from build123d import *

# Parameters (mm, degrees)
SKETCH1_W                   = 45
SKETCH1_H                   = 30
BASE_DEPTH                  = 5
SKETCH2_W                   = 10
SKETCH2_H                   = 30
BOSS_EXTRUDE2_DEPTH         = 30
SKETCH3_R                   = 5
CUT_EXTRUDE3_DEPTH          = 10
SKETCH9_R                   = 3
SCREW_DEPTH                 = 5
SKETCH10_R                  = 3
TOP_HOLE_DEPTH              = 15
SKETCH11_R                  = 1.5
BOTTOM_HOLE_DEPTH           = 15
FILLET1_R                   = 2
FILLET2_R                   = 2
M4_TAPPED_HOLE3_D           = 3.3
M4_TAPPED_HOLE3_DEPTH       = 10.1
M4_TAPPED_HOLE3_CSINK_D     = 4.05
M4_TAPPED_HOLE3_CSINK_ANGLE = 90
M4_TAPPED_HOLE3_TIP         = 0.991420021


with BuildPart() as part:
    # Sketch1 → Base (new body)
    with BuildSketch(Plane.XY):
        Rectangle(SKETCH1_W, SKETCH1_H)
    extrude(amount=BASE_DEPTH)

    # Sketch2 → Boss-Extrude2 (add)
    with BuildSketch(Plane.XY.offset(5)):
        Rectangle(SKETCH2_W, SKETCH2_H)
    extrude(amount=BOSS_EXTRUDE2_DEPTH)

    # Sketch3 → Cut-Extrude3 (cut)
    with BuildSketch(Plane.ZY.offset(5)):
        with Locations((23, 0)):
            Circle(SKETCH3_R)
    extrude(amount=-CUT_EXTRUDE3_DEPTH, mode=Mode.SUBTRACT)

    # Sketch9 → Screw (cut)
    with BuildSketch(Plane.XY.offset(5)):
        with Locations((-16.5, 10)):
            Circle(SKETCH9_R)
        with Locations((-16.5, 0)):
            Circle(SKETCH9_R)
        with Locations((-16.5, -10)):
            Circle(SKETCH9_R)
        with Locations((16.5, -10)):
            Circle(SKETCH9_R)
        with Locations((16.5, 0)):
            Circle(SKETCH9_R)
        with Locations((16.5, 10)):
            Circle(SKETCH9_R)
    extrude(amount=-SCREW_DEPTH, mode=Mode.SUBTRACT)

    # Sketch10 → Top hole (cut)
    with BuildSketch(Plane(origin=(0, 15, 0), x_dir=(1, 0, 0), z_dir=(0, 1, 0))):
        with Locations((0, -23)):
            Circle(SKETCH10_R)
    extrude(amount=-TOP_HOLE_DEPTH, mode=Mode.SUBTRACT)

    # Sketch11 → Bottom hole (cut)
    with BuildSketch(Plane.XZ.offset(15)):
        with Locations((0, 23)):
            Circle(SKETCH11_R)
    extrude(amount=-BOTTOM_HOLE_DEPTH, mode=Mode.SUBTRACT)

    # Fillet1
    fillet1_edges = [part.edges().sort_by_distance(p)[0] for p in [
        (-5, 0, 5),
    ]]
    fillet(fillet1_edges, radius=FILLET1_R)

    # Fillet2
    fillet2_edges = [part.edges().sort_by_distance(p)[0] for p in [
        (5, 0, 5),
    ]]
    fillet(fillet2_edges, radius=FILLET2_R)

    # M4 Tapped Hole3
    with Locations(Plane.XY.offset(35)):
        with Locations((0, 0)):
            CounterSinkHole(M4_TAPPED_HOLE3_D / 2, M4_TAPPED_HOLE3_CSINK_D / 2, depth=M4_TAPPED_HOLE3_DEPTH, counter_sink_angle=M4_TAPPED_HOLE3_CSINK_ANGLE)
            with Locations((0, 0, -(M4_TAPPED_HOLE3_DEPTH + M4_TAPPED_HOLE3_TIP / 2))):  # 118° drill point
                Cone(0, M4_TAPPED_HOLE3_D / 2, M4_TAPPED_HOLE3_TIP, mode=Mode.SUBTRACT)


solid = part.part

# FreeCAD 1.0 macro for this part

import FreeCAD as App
import Part
import Sketcher
from FreeCAD import Vector
Q = App.Units.Quantity


def edges_at(feature, points):
    """Names of the edges that pass closest to the given points."""
    edges = feature.Shape.Edges
    near = lambda p: min(range(len(edges)), key=lambda i: edges[i].distToShape(Part.Vertex(*p))[0])
    return sorted({f"Edge{near(p) + 1}" for p in points})

doc = App.newDocument("Part")
body = doc.addObject("PartDesign::Body", "Body")

sketch1 = body.newObject("Sketcher::SketchObject", "Sketch")
sketch1.AttachmentSupport = (doc.getObject("XY_Plane"), [""])
sketch1.MapMode = "FlatFace"
sketch1.addGeometry([
    Part.LineSegment(Vector(-22, 15, 0), Vector(-22, -15, 0)),
    Part.LineSegment(Vector(-22, -15, 0), Vector(22, -15, 0)),
    Part.LineSegment(Vector(22, -15, 0), Vector(22, 15, 0)),
    Part.LineSegment(Vector(22, 15, 0), Vector(-22, 15, 0)),
], False)
sketch1.addConstraint([
    Sketcher.Constraint("Coincident", 0, 2, 1, 1),
    Sketcher.Constraint("Coincident", 1, 2, 2, 1),
    Sketcher.Constraint("Coincident", 2, 2, 3, 1),
    Sketcher.Constraint("Coincident", 3, 2, 0, 1),
    Sketcher.Constraint("Vertical", 0),
    Sketcher.Constraint("Horizontal", 1),
    Sketcher.Constraint("Vertical", 2),
    Sketcher.Constraint("Horizontal", 3),
    Sketcher.Constraint("Symmetric", 0, 2, 2, 2, -1, 1),
    Sketcher.Constraint("DistanceX", 1, 1, 1, 2, Q("45 mm")),
    Sketcher.Constraint("DistanceY", 0, 2, 0, 1, Q("30 mm")),
])
pad1 = body.newObject("PartDesign::Pad", "Pad")
pad1.Profile = sketch1
pad1.Length = 5

sketch2 = body.newObject("Sketcher::SketchObject", "Sketch001")
sketch2.AttachmentSupport = (doc.getObject("XY_Plane"), [""])
sketch2.MapMode = "FlatFace"
sketch2.AttachmentOffset = App.Placement(Vector(0, 0, 5), App.Rotation())
sketch2.addGeometry([
    Part.LineSegment(Vector(-5, 15, 0), Vector(-5, -15, 0)),
    Part.LineSegment(Vector(-5, -15, 0), Vector(5, -15, 0)),
    Part.LineSegment(Vector(5, -15, 0), Vector(5, 15, 0)),
    Part.LineSegment(Vector(5, 15, 0), Vector(-5, 15, 0)),
], False)
sketch2.addConstraint([
    Sketcher.Constraint("Coincident", 0, 2, 1, 1),
    Sketcher.Constraint("Coincident", 1, 2, 2, 1),
    Sketcher.Constraint("Coincident", 2, 2, 3, 1),
    Sketcher.Constraint("Coincident", 3, 2, 0, 1),
    Sketcher.Constraint("Vertical", 0),
    Sketcher.Constraint("Horizontal", 1),
    Sketcher.Constraint("Vertical", 2),
    Sketcher.Constraint("Horizontal", 3),
    Sketcher.Constraint("Symmetric", 0, 2, 2, 2, -1, 1),
    Sketcher.Constraint("DistanceX", 1, 1, 1, 2, Q("10 mm")),
    Sketcher.Constraint("DistanceY", 0, 2, 0, 1, Q("30 mm")),
])
pad2 = body.newObject("PartDesign::Pad", "Pad001")
pad2.Profile = sketch2
pad2.Length = 30

sketch3 = body.newObject("Sketcher::SketchObject", "Sketch002")
sketch3.AttachmentSupport = (doc.getObject("YZ_Plane"), [""])
sketch3.MapMode = "FlatFace"
sketch3.AttachmentOffset = App.Placement(Vector(0, 0, -5), App.Rotation())
sketch3.addGeometry(Part.Circle(Vector(0, 23, 0), Vector(0, 0, 1), 5), False)
sketch3.addConstraint([
    Sketcher.Constraint("PointOnObject", 0, 3, -2),
    Sketcher.Constraint("Diameter", 0, Q("10 mm")),
    Sketcher.Constraint("DistanceY", -1, 1, 0, 3, Q("23 mm")),
])
pocket1 = body.newObject("PartDesign::Pocket", "Pocket")
pocket1.Profile = sketch3
pocket1.Length = 10
pocket1.Reversed = True

sketch4 = body.newObject("Sketcher::SketchObject", "Sketch003")
sketch4.AttachmentSupport = (doc.getObject("XY_Plane"), [""])
sketch4.MapMode = "FlatFace"
sketch4.AttachmentOffset = App.Placement(Vector(0, 0, 5), App.Rotation())
sketch4.addGeometry([
    Part.Circle(Vector(-16.5, 10, 0), Vector(0, 0, 1), 3),
    Part.Circle(Vector(-16.5, 0, 0), Vector(0, 0, 1), 3),
    Part.Circle(Vector(-16.5, -10, 0), Vector(0, 0, 1), 3),
    Part.Circle(Vector(16.5, -10, 0), Vector(0, 0, 1), 3),
    Part.Circle(Vector(16.5, 0, 0), Vector(0, 0, 1), 3),
    Part.Circle(Vector(16.5, 10, 0), Vector(0, 0, 1), 3),
], False)
sketch4.addConstraint([
    Sketcher.Constraint("Equal", 0, 1),
    Sketcher.Constraint("Equal", 1, 2),
    Sketcher.Constraint("Equal", 2, 3),
    Sketcher.Constraint("Equal", 3, 4),
    Sketcher.Constraint("Equal", 4, 5),
    Sketcher.Constraint("Symmetric", 0, 3, 3, 3, -1, 1),
    Sketcher.Constraint("Symmetric", 1, 3, 4, 3, -1, 1),
    Sketcher.Constraint("Symmetric", 2, 3, 5, 3, -1, 1),
    Sketcher.Constraint("Symmetric", 2, 3, 3, 3, -2),
    Sketcher.Constraint("PointOnObject", 1, 3, -1),
    Sketcher.Constraint("Vertical", 0, 3, 1, 3),
    Sketcher.Constraint("Diameter", 0, Q("6 mm")),
    Sketcher.Constraint("DistanceY", -1, 1, 0, 3, Q("10 mm")),
    Sketcher.Constraint("DistanceX", 2, 3, 3, 3, Q("33 mm")),
])
pocket2 = body.newObject("PartDesign::Pocket", "Pocket001")
pocket2.Profile = sketch4
pocket2.Length = 5

sketch5 = body.newObject("Sketcher::SketchObject", "Sketch004")
sketch5.AttachmentSupport = (doc.getObject("XZ_Plane"), [""])
sketch5.MapMode = "FlatFace"
sketch5.AttachmentOffset = App.Placement(Vector(0, 0, -15), App.Rotation())
sketch5.addGeometry(Part.Circle(Vector(0, 23, 0), Vector(0, 0, 1), 3), False)
sketch5.addConstraint([
    Sketcher.Constraint("PointOnObject", 0, 3, -2),
    Sketcher.Constraint("Diameter", 0, Q("6 mm")),
    Sketcher.Constraint("DistanceY", -1, 1, 0, 3, Q("23 mm")),
])
pocket3 = body.newObject("PartDesign::Pocket", "Pocket002")
pocket3.Profile = sketch5
pocket3.Length = 15
pocket3.Reversed = True

sketch6 = body.newObject("Sketcher::SketchObject", "Sketch005")
sketch6.AttachmentSupport = (doc.getObject("XZ_Plane"), [""])
sketch6.MapMode = "FlatFace"
sketch6.AttachmentOffset = App.Placement(Vector(0, 0, 15), App.Rotation())
sketch6.addGeometry(Part.Circle(Vector(0, 23, 0), Vector(0, 0, 1), 1.5), False)
sketch6.addConstraint([
    Sketcher.Constraint("PointOnObject", 0, 3, -2),
    Sketcher.Constraint("Diameter", 0, Q("3 mm")),
    Sketcher.Constraint("DistanceY", -1, 1, 0, 3, Q("23 mm")),
])
pocket4 = body.newObject("PartDesign::Pocket", "Pocket003")
pocket4.Profile = sketch6
pocket4.Length = 15
doc.recompute()

fillet = body.newObject("PartDesign::Fillet", "Fillet")
fillet.Base = (pocket4, edges_at(pocket4, [(-5, 0, 5)]))
fillet.Radius = 2
doc.recompute()

fillet2 = body.newObject("PartDesign::Fillet", "Fillet001")
fillet2.Base = (fillet, edges_at(fillet, [(5, 0, 5)]))
fillet2.Radius = 2

sketch7 = body.newObject("Sketcher::SketchObject", "Sketch006")
sketch7.AttachmentSupport = (doc.getObject("XY_Plane"), [""])
sketch7.MapMode = "FlatFace"
sketch7.AttachmentOffset = App.Placement(Vector(0, 0, 35), App.Rotation())
sketch7.addGeometry(Part.Circle(Vector(0, 0, 0), Vector(0, 0, 1), 1.6), False)
sketch7.addConstraint([
    Sketcher.Constraint("Coincident", 0, 3, -1, 1),
    Sketcher.Constraint("Diameter", 0, Q("3.3 mm")),
])
doc.recompute()
hole = body.newObject("PartDesign::Hole", "Hole")
hole.Profile = sketch7
hole.ThreadType = "None"
hole.Diameter = 3.3
hole.DepthType = "Dimension"
hole.Depth = 10.1
hole.DrillPoint = "Angled"
hole.DrillPointAngle = 118
hole.HoleCutType = "Countersink"
hole.HoleCutDiameter = 4.05
hole.HoleCutCountersinkAngle = 90

doc.recompute()
